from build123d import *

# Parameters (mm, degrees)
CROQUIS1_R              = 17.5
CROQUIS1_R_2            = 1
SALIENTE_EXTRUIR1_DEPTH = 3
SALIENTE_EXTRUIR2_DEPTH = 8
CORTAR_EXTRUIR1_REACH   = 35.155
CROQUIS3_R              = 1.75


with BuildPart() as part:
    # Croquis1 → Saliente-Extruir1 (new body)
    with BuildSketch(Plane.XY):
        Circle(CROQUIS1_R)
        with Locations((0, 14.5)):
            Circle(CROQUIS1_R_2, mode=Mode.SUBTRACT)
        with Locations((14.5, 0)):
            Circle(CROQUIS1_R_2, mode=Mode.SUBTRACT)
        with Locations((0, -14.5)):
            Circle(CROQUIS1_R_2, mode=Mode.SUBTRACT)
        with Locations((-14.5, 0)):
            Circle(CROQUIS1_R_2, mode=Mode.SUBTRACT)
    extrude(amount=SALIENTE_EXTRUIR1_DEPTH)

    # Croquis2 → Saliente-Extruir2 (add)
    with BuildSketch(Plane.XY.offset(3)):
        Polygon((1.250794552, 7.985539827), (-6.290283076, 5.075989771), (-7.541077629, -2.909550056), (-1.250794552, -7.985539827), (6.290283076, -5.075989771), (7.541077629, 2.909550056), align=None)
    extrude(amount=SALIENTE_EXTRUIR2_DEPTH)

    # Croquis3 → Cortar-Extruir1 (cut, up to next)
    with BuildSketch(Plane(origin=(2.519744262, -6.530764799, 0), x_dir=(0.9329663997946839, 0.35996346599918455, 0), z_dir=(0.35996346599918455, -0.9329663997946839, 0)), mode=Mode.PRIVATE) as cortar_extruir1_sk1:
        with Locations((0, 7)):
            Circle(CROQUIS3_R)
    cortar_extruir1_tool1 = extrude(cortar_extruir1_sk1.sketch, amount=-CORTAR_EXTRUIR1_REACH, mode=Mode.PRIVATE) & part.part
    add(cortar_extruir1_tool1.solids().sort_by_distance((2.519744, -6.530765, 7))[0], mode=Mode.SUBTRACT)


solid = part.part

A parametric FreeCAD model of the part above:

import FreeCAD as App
import Part
import Sketcher


def add_polygon(sketch, points):
    """Adds a closed chain of lines whose ends are joined by coincident constraints."""
    first, n = sketch.GeometryCount, len(points)
    for a, b in zip(points, points[1:] + points[:1]):
        sketch.addGeometry(Part.LineSegment(App.Vector(*a, 0), App.Vector(*b, 0)), False)
    for i in range(n):
        sketch.addConstraint(Sketcher.Constraint("Coincident", first + i, 2, first + (i + 1) % n, 1))

doc = App.newDocument("Part")
body = doc.addObject("PartDesign::Body", "Body")

sketch1 = doc.addObject("Sketcher::SketchObject", "Sketch")
body.addObject(sketch1)
sketch1.AttachmentSupport = (doc.XY_Plane, [""])
sketch1.MapMode = "FlatFace"
sketch1.addGeometry(Part.Circle(App.Vector(0, 0, 0), App.Vector(0, 0, 1), 17.5), False)
sketch1.addGeometry(Part.Circle(App.Vector(0, -14.5, 0), App.Vector(0, 0, 1), 1), False)
sketch1.addGeometry(Part.Circle(App.Vector(-14.5, 0, 0), App.Vector(0, 0, 1), 1), False)
sketch1.addGeometry(Part.Circle(App.Vector(14.5, 0, 0), App.Vector(0, 0, 1), 1), False)
sketch1.addGeometry(Part.Circle(App.Vector(0, 14.5, 0), App.Vector(0, 0, 1), 1), False)
sketch1.addConstraint(Sketcher.Constraint("Coincident", 0, 3, -1, 1))
sketch1.addConstraint(Sketcher.Constraint("Equal", 1, 2))
sketch1.addConstraint(Sketcher.Constraint("Equal", 2, 3))
sketch1.addConstraint(Sketcher.Constraint("Equal", 3, 4))
sketch1.addConstraint(Sketcher.Constraint("Symmetric", 2, 3, 3, 3, -1, 1))
sketch1.addConstraint(Sketcher.Constraint("Symmetric", 1, 3, 4, 3, -1, 1))
sketch1.addConstraint(Sketcher.Constraint("PointOnObject", 1, 3, -2))
sketch1.addConstraint(Sketcher.Constraint("PointOnObject", 2, 3, -1))
sketch1.addConstraint(Sketcher.Constraint("Diameter", 0, 35.0))
sketch1.addConstraint(Sketcher.Constraint("Diameter", 1, 2.0))
sketch1.addConstraint(Sketcher.Constraint("DistanceX", 2, 3, 3, 3, 29.0))
sketch1.addConstraint(Sketcher.Constraint("DistanceY", 1, 3, 4, 3, 29.0))
pad1 = doc.addObject("PartDesign::Pad", "Pad")
body.addObject(pad1)
pad1.Profile = sketch1
pad1.Length = 3

sketch2 = doc.addObject("Sketcher::SketchObject", "Sketch001")
body.addObject(sketch2)
sketch2.AttachmentSupport = (doc.XY_Plane, [""])
sketch2.MapMode = "FlatFace"
sketch2.AttachmentOffset = App.Placement(App.Vector(0, 0, 3), App.Rotation())
add_polygon(sketch2, [(1, 8), (-6, 5), (-8, -3), (-1, -8), (6, -5), (8, 3)])
sketch2.addConstraint(Sketcher.Constraint("Symmetric", 0, 2, 3, 2, -1, 1))
sketch2.addConstraint(Sketcher.Constraint("Symmetric", 1, 2, 4, 2, -1, 1))
sketch2.addConstraint(Sketcher.Constraint("Symmetric", 2, 2, 5, 2, -1, 1))
sketch2.addConstraint(Sketcher.Constraint("Equal", 0, 1))
sketch2.addConstraint(Sketcher.Constraint("Equal", 1, 2))
sketch2.addConstraint(Sketcher.Constraint("DistanceY", 1, 2, 4, 2, 5.8191))
sketch2.addConstraint(Sketcher.Constraint("DistanceY", -1, 1, 0, 2, 5.07599))
sketch2.addConstraint(Sketcher.Constraint("DistanceY", 2, 2, -1, 1, 7.98554))
sketch2.addConstraint(Sketcher.Constraint("DistanceX", 0, 2, 2, 2, 5.039489))
pad2 = doc.addObject("PartDesign::Pad", "Pad001")
body.addObject(pad2)
pad2.Profile = sketch2
pad2.Length = 8

sketch3 = doc.addObject("Sketcher::SketchObject", "Sketch002")
body.addObject(sketch3)
sketch3.Placement = App.Placement(App.Vector(2.519744, -6.530765, 0), App.Rotation(App.Vector(0.9329664, 0.359963466, 0), App.Vector(0, 0, 1), App.Vector(0.359963466, -0.9329664, 0), "ZXY"))
sketch3.addGeometry(Part.Circle(App.Vector(0, 7, 0), App.Vector(0, 0, 1), 1.8), False)
sketch3.addConstraint(Sketcher.Constraint("PointOnObject", 0, 3, -2))
sketch3.addConstraint(Sketcher.Constraint("Diameter", 0, 3.5))
sketch3.addConstraint(Sketcher.Constraint("DistanceY", -1, 1, 0, 3, 7.0))
pocket1 = doc.addObject("PartDesign::Pocket", "Pocket")
body.addObject(pocket1)
pocket1.Profile = sketch3
pocket1.Type = "UpToFirst"

doc.recompute()
